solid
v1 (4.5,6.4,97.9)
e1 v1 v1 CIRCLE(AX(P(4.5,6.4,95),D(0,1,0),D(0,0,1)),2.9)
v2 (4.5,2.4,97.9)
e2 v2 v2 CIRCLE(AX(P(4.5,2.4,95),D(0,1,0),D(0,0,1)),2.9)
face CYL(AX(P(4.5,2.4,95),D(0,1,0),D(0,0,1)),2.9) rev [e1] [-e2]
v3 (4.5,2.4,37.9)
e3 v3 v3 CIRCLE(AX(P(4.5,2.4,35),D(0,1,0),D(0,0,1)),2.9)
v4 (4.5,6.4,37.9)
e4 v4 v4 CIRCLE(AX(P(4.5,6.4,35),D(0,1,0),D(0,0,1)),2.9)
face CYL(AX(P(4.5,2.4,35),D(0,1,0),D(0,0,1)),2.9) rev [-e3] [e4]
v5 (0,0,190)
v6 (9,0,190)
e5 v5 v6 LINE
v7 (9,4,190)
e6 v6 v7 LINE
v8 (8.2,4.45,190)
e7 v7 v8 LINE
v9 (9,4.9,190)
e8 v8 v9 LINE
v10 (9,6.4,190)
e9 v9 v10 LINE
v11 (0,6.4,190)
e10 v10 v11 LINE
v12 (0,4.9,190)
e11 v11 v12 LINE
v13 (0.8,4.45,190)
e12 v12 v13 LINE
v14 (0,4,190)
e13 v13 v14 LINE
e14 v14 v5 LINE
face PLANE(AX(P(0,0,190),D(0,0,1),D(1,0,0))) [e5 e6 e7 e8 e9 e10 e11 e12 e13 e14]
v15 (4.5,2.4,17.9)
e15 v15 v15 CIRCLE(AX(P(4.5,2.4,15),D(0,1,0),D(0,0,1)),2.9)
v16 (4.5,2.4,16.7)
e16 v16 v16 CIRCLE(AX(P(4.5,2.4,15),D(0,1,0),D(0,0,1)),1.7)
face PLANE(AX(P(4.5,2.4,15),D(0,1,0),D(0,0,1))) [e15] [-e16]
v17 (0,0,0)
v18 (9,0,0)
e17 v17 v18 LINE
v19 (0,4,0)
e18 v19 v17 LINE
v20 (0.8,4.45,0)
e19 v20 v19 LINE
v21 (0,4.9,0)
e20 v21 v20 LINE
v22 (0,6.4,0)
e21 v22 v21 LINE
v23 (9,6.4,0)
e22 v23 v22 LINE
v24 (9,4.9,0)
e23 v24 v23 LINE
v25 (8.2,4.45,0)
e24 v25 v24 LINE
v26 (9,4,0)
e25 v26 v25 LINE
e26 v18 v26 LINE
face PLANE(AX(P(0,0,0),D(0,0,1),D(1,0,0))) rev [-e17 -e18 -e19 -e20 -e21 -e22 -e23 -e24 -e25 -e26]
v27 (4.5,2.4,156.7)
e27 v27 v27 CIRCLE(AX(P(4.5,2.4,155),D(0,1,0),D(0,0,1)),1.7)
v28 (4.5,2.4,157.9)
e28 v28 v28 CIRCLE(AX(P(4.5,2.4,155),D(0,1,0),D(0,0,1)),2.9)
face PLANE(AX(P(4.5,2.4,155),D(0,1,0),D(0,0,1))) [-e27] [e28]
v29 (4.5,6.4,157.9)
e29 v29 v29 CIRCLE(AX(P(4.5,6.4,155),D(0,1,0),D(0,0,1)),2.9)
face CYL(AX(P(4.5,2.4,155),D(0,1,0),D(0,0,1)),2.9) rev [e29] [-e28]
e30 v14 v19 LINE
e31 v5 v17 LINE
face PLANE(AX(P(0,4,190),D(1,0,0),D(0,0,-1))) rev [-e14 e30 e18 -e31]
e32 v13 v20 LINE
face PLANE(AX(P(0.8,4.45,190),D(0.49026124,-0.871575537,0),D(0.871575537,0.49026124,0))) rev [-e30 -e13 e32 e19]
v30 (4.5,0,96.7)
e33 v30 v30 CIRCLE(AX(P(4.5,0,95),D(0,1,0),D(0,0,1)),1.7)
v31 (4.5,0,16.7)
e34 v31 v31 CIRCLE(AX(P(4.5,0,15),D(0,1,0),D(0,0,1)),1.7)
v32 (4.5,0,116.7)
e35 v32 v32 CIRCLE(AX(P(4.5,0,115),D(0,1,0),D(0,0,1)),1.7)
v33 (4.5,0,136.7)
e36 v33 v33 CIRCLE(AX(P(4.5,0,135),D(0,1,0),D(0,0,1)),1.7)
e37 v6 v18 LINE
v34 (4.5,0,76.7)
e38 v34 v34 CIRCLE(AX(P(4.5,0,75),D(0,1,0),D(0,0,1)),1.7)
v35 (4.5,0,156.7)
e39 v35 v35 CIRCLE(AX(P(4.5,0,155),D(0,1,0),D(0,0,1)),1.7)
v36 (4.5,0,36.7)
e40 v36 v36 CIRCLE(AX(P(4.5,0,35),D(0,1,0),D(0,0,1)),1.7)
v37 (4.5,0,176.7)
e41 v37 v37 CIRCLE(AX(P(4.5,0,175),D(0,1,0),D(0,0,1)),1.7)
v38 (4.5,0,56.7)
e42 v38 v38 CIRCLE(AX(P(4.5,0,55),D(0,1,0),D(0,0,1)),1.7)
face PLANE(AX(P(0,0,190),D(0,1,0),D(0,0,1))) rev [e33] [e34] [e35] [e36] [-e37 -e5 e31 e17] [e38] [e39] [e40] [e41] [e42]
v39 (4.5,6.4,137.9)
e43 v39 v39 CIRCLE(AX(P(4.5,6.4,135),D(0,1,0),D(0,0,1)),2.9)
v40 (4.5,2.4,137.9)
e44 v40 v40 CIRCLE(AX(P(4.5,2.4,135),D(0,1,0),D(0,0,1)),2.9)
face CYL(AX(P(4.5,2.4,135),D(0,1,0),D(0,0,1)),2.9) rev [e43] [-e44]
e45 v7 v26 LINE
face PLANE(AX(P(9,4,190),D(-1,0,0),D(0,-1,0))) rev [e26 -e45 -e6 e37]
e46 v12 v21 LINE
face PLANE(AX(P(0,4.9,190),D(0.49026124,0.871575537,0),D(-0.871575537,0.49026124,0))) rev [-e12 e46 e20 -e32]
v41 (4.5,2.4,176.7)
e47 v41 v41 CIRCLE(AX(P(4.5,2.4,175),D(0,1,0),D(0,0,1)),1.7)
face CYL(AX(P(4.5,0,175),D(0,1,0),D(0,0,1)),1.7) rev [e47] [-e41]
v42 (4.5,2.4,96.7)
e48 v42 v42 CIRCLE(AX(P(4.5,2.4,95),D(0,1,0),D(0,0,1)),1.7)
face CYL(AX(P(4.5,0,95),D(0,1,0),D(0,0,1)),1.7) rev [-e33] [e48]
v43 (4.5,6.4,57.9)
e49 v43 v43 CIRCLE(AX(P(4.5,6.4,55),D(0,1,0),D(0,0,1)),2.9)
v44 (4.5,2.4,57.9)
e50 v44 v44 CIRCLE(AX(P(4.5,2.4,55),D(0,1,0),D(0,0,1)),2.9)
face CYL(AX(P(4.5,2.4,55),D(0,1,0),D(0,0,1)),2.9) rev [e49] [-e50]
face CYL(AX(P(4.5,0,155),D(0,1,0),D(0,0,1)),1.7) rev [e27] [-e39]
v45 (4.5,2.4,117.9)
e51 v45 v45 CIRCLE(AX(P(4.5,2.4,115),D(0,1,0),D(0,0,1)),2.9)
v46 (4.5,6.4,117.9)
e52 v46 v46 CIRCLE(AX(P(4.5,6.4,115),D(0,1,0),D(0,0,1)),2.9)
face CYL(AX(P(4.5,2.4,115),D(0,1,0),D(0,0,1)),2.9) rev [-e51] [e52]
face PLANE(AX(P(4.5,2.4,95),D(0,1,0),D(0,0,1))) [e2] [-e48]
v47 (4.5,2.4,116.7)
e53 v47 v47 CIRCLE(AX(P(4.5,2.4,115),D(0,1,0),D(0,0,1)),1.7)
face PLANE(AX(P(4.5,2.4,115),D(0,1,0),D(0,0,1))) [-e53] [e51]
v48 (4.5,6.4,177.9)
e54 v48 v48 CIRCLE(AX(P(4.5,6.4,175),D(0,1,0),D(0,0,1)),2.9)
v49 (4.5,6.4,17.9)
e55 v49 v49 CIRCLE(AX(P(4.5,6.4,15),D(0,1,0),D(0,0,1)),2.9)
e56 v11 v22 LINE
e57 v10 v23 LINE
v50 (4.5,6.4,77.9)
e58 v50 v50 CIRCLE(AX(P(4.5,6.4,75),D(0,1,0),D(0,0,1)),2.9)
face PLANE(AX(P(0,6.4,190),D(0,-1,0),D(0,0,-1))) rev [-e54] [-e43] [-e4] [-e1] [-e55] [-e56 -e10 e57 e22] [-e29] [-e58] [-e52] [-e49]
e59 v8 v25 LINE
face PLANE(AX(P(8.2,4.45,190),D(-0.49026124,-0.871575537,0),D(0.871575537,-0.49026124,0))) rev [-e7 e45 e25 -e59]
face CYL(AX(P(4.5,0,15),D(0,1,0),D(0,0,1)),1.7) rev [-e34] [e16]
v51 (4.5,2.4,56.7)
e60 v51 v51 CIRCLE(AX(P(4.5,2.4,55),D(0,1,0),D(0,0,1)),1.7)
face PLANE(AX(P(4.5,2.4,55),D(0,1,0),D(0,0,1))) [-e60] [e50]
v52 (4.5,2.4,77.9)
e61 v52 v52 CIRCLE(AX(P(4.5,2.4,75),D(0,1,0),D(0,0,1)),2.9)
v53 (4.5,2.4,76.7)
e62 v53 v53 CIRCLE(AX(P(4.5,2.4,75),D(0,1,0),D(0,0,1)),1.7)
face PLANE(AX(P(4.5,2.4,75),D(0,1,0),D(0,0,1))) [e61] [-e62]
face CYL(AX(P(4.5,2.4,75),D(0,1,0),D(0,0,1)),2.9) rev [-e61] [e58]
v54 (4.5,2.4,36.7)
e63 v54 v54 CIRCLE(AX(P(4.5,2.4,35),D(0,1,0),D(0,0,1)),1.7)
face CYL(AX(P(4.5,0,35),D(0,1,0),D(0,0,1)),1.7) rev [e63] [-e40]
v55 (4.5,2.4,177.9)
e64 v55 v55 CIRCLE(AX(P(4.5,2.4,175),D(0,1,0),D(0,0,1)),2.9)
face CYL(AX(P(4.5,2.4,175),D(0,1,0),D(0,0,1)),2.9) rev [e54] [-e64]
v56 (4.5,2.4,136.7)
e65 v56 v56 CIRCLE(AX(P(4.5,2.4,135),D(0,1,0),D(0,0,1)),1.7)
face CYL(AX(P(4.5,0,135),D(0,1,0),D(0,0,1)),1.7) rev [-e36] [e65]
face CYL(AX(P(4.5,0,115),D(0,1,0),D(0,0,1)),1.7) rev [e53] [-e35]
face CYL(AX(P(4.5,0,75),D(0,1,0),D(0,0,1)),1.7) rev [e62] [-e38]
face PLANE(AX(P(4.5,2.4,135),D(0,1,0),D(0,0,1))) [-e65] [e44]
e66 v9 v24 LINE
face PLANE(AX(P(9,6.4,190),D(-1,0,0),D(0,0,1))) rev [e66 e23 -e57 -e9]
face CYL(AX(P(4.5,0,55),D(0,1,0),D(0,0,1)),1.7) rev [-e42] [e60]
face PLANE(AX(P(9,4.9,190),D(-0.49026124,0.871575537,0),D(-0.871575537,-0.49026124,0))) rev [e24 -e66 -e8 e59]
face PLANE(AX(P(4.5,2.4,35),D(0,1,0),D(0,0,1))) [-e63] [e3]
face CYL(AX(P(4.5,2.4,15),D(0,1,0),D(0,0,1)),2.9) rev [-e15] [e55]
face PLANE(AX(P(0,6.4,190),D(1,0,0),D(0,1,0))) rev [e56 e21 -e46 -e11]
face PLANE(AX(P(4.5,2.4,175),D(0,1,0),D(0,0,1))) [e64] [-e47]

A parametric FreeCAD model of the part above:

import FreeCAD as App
import Part
import Sketcher

doc = App.newDocument("Part")
body = doc.addObject("PartDesign::Body", "Body")

# Sketch on XY plane
sketch1 = body.newObject("Sketcher::SketchObject", "Sketch")
sketch1.AttachmentSupport = (doc.getObject("XY_Plane"), [""])
sketch1.MapMode = "FlatFace"
sketch1.addGeometry(Part.LineSegment(App.Vector(9, 4.9, 0), App.Vector(9, 6.4, 0)), False)
sketch1.addGeometry(Part.LineSegment(App.Vector(9, 6.4, 0), App.Vector(0, 6.4, 0)), False)
sketch1.addGeometry(Part.LineSegment(App.Vector(0, 6.4, 0), App.Vector(0, 4.9, 0)), False)
sketch1.addGeometry(Part.LineSegment(App.Vector(0, 4.9, 0), App.Vector(0.8, 4.5, 0)), False)
sketch1.addGeometry(Part.LineSegment(App.Vector(0.8, 4.5, 0), App.Vector(0, 4, 0)), False)
sketch1.addGeometry(Part.LineSegment(App.Vector(0, 4, 0), App.Vector(0, 0, 0)), False)
sketch1.addGeometry(Part.LineSegment(App.Vector(0, 0, 0), App.Vector(9, 0, 0)), False)
sketch1.addGeometry(Part.LineSegment(App.Vector(9, 0, 0), App.Vector(9, 4, 0)), False)
sketch1.addGeometry(Part.LineSegment(App.Vector(9, 4, 0), App.Vector(8.2, 4.5, 0)), False)
sketch1.addGeometry(Part.LineSegment(App.Vector(8.2, 4.5, 0), App.Vector(9, 4.9, 0)), False)
sketch1.addConstraint(Sketcher.Constraint("Coincident", 0, 2, 1, 1))
sketch1.addConstraint(Sketcher.Constraint("Coincident", 1, 2, 2, 1))
sketch1.addConstraint(Sketcher.Constraint("Coincident", 2, 2, 3, 1))
sketch1.addConstraint(Sketcher.Constraint("Coincident", 3, 2, 4, 1))
sketch1.addConstraint(Sketcher.Constraint("Coincident", 4, 2, 5, 1))
sketch1.addConstraint(Sketcher.Constraint("Coincident", 5, 2, 6, 1))
sketch1.addConstraint(Sketcher.Constraint("Coincident", 6, 2, 7, 1))
sketch1.addConstraint(Sketcher.Constraint("Coincident", 7, 2, 8, 1))
sketch1.addConstraint(Sketcher.Constraint("Coincident", 8, 2, 9, 1))
sketch1.addConstraint(Sketcher.Constraint("Coincident", 9, 2, 0, 1))
sketch1.addConstraint(Sketcher.Constraint("Vertical", 0))
sketch1.addConstraint(Sketcher.Constraint("Horizontal", 1))
sketch1.addConstraint(Sketcher.Constraint("Vertical", 2))
sketch1.addConstraint(Sketcher.Constraint("Vertical", 5))
sketch1.addConstraint(Sketcher.Constraint("Horizontal", 6))
sketch1.addConstraint(Sketcher.Constraint("Vertical", 7))
sketch1.addConstraint(Sketcher.Constraint("Coincident", 5, 2, -1, 1))
sketch1.addConstraint(Sketcher.Constraint("PointOnObject", 1, 2, -2))
sketch1.addConstraint(Sketcher.Constraint("Parallel", 3, 8))
sketch1.addConstraint(Sketcher.Constraint("Parallel", 4, 9))
sketch1.addConstraint(Sketcher.Constraint("Horizontal", 4, 2, 7, 2))
sketch1.addConstraint(Sketcher.Constraint("Horizontal", 3, 2, 8, 2))
sketch1.addConstraint(Sketcher.Constraint("Horizontal", 2, 2, 9, 2))
sketch1.addConstraint(Sketcher.Constraint("Vertical", 0, 2, 6, 2))
sketch1.addConstraint(Sketcher.Constraint("DistanceX", 1, 2, 1, 1, 9.0))
sketch1.addConstraint(Sketcher.Constraint("DistanceY", 5, 2, 5, 1, 4.0))
sketch1.addConstraint(Sketcher.Constraint("DistanceY", 0, 1, 0, 2, 1.5))
sketch1.addConstraint(Sketcher.Constraint("DistanceY", -1, 1, 0, 2, 6.4))
sketch1.addConstraint(Sketcher.Constraint("DistanceX", -1, 1, 3, 2, 0.8))
pad1 = body.newObject("PartDesign::Pad", "Pad")
pad1.Profile = sketch1
pad1.Length = 190

# Sketch on XZ plane
sketch2 = body.newObject("Sketcher::SketchObject", "Sketch001")
sketch2.AttachmentSupport = (doc.getObject("XZ_Plane"), [""])
sketch2.MapMode = "FlatFace"
sketch2.AttachmentOffset = App.Placement(App.Vector(0, 0, -6.4), App.Rotation())
sketch2.addGeometry(Part.Circle(App.Vector(4.5, 175, 0), App.Vector(0, 0, 1), 2.9), False)
sketch2.addGeometry(Part.Circle(App.Vector(4.5, 155, 0), App.Vector(0, 0, 1), 2.9), False)
sketch2.addGeometry(Part.Circle(App.Vector(4.5, 135, 0), App.Vector(0, 0, 1), 2.9), False)
sketch2.addGeometry(Part.Circle(App.Vector(4.5, 115, 0), App.Vector(0, 0, 1), 2.9), False)
sketch2.addGeometry(Part.Circle(App.Vector(4.5, 95, 0), App.Vector(0, 0, 1), 2.9), False)
sketch2.addGeometry(Part.Circle(App.Vector(4.5, 75, 0), App.Vector(0, 0, 1), 2.9), False)
sketch2.addGeometry(Part.Circle(App.Vector(4.5, 55, 0), App.Vector(0, 0, 1), 2.9), False)
sketch2.addGeometry(Part.Circle(App.Vector(4.5, 35, 0), App.Vector(0, 0, 1), 2.9), False)
sketch2.addGeometry(Part.Circle(App.Vector(4.5, 15, 0), App.Vector(0, 0, 1), 2.9), False)
sketch2.addConstraint(Sketcher.Constraint("Equal", 0, 1))
sketch2.addConstraint(Sketcher.Constraint("Equal", 1, 2))
sketch2.addConstraint(Sketcher.Constraint("Equal", 2, 3))
sketch2.addConstraint(Sketcher.Constraint("Equal", 3, 4))
sketch2.addConstraint(Sketcher.Constraint("Equal", 4, 5))
sketch2.addConstraint(Sketcher.Constraint("Equal", 5, 6))
sketch2.addConstraint(Sketcher.Constraint("Equal", 6, 7))
sketch2.addConstraint(Sketcher.Constraint("Equal", 7, 8))
sketch2.addConstraint(Sketcher.Constraint("Vertical", 0, 3, 1, 3))
sketch2.addConstraint(Sketcher.Constraint("Vertical", 1, 3, 2, 3))
sketch2.addConstraint(Sketcher.Constraint("Vertical", 2, 3, 3, 3))
sketch2.addConstraint(Sketcher.Constraint("Vertical", 3, 3, 4, 3))
sketch2.addConstraint(Sketcher.Constraint("Vertical", 4, 3, 5, 3))
sketch2.addConstraint(Sketcher.Constraint("Vertical", 5, 3, 6, 3))
sketch2.addConstraint(Sketcher.Constraint("Vertical", 6, 3, 7, 3))
sketch2.addConstraint(Sketcher.Constraint("Vertical", 7, 3, 8, 3))
sketch2.addConstraint(Sketcher.Constraint("Diameter", 0, 5.8))
sketch2.addConstraint(Sketcher.Constraint("DistanceY", -1, 1, 0, 3, 175.0))
sketch2.addConstraint(Sketcher.Constraint("DistanceY", -1, 1, 1, 3, 155.0))
sketch2.addConstraint(Sketcher.Constraint("DistanceY", -1, 1, 2, 3, 135.0))
sketch2.addConstraint(Sketcher.Constraint("DistanceY", -1, 1, 3, 3, 115.0))
sketch2.addConstraint(Sketcher.Constraint("DistanceY", -1, 1, 4, 3, 95.0))
sketch2.addConstraint(Sketcher.Constraint("DistanceY", -1, 1, 5, 3, 75.0))
sketch2.addConstraint(Sketcher.Constraint("DistanceY", -1, 1, 6, 3, 55.0))
sketch2.addConstraint(Sketcher.Constraint("DistanceY", -1, 1, 7, 3, 35.0))
sketch2.addConstraint(Sketcher.Constraint("DistanceY", -1, 1, 8, 3, 15.0))
sketch2.addConstraint(Sketcher.Constraint("DistanceX", -1, 1, 0, 3, 4.5))
pocket1 = body.newObject("PartDesign::Pocket", "Pocket")
pocket1.Profile = sketch2
pocket1.Length = 4
pocket1.Reversed = True

# Sketch on XZ plane
sketch3 = body.newObject("Sketcher::SketchObject", "Sketch002")
sketch3.AttachmentSupport = (doc.getObject("XZ_Plane"), [""])
sketch3.MapMode = "FlatFace"
sketch3.AttachmentOffset = App.Placement(App.Vector(0, 0, -2.4), App.Rotation())
sketch3.addGeometry(Part.Circle(App.Vector(4.5, 175, 0), App.Vector(0, 0, 1), 1.7), False)
sketch3.addGeometry(Part.Circle(App.Vector(4.5, 155, 0), App.Vector(0, 0, 1), 1.7), False)
sketch3.addGeometry(Part.Circle(App.Vector(4.5, 135, 0), App.Vector(0, 0, 1), 1.7), False)
sketch3.addGeometry(Part.Circle(App.Vector(4.5, 115, 0), App.Vector(0, 0, 1), 1.7), False)
sketch3.addGeometry(Part.Circle(App.Vector(4.5, 95, 0), App.Vector(0, 0, 1), 1.7), False)
sketch3.addGeometry(Part.Circle(App.Vector(4.5, 75, 0), App.Vector(0, 0, 1), 1.7), False)
sketch3.addGeometry(Part.Circle(App.Vector(4.5, 55, 0), App.Vector(0, 0, 1), 1.7), False)
sketch3.addGeometry(Part.Circle(App.Vector(4.5, 35, 0), App.Vector(0, 0, 1), 1.7), False)
sketch3.addGeometry(Part.Circle(App.Vector(4.5, 15, 0), App.Vector(0, 0, 1), 1.7), False)
sketch3.addConstraint(Sketcher.Constraint("Equal", 0, 1))
sketch3.addConstraint(Sketcher.Constraint("Equal", 1, 2))
sketch3.addConstraint(Sketcher.Constraint("Equal", 2, 3))
sketch3.addConstraint(Sketcher.Constraint("Equal", 3, 4))
sketch3.addConstraint(Sketcher.Constraint("Equal", 4, 5))
sketch3.addConstraint(Sketcher.Constraint("Equal", 5, 6))
sketch3.addConstraint(Sketcher.Constraint("Equal", 6, 7))
sketch3.addConstraint(Sketcher.Constraint("Equal", 7, 8))
sketch3.addConstraint(Sketcher.Constraint("Vertical", 0, 3, 1, 3))
sketch3.addConstraint(Sketcher.Constraint("Vertical", 1, 3, 2, 3))
sketch3.addConstraint(Sketcher.Constraint("Vertical", 2, 3, 3, 3))
sketch3.addConstraint(Sketcher.Constraint("Vertical", 3, 3, 4, 3))
sketch3.addConstraint(Sketcher.Constraint("Vertical", 4, 3, 5, 3))
sketch3.addConstraint(Sketcher.Constraint("Vertical", 5, 3, 6, 3))
sketch3.addConstraint(Sketcher.Constraint("Vertical", 6, 3, 7, 3))
sketch3.addConstraint(Sketcher.Constraint("Vertical", 7, 3, 8, 3))
sketch3.addConstraint(Sketcher.Constraint("Diameter", 0, 3.4))
sketch3.addConstraint(Sketcher.Constraint("DistanceY", -1, 1, 0, 3, 175.0))
sketch3.addConstraint(Sketcher.Constraint("DistanceY", -1, 1, 1, 3, 155.0))
sketch3.addConstraint(Sketcher.Constraint("DistanceY", -1, 1, 2, 3, 135.0))
sketch3.addConstraint(Sketcher.Constraint("DistanceY", -1, 1, 3, 3, 115.0))
sketch3.addConstraint(Sketcher.Constraint("DistanceY", -1, 1, 4, 3, 95.0))
sketch3.addConstraint(Sketcher.Constraint("DistanceY", -1, 1, 5, 3, 75.0))
sketch3.addConstraint(Sketcher.Constraint("DistanceY", -1, 1, 6, 3, 55.0))
sketch3.addConstraint(Sketcher.Constraint("DistanceY", -1, 1, 7, 3, 35.0))
sketch3.addConstraint(Sketcher.Constraint("DistanceY", -1, 1, 8, 3, 15.0))
sketch3.addConstraint(Sketcher.Constraint("DistanceX", -1, 1, 0, 3, 4.5))
pocket2 = body.newObject("PartDesign::Pocket", "Pocket001")
pocket2.Profile = sketch3
pocket2.Type = "ThroughAll"
pocket2.Reversed = True

doc.recompute()
